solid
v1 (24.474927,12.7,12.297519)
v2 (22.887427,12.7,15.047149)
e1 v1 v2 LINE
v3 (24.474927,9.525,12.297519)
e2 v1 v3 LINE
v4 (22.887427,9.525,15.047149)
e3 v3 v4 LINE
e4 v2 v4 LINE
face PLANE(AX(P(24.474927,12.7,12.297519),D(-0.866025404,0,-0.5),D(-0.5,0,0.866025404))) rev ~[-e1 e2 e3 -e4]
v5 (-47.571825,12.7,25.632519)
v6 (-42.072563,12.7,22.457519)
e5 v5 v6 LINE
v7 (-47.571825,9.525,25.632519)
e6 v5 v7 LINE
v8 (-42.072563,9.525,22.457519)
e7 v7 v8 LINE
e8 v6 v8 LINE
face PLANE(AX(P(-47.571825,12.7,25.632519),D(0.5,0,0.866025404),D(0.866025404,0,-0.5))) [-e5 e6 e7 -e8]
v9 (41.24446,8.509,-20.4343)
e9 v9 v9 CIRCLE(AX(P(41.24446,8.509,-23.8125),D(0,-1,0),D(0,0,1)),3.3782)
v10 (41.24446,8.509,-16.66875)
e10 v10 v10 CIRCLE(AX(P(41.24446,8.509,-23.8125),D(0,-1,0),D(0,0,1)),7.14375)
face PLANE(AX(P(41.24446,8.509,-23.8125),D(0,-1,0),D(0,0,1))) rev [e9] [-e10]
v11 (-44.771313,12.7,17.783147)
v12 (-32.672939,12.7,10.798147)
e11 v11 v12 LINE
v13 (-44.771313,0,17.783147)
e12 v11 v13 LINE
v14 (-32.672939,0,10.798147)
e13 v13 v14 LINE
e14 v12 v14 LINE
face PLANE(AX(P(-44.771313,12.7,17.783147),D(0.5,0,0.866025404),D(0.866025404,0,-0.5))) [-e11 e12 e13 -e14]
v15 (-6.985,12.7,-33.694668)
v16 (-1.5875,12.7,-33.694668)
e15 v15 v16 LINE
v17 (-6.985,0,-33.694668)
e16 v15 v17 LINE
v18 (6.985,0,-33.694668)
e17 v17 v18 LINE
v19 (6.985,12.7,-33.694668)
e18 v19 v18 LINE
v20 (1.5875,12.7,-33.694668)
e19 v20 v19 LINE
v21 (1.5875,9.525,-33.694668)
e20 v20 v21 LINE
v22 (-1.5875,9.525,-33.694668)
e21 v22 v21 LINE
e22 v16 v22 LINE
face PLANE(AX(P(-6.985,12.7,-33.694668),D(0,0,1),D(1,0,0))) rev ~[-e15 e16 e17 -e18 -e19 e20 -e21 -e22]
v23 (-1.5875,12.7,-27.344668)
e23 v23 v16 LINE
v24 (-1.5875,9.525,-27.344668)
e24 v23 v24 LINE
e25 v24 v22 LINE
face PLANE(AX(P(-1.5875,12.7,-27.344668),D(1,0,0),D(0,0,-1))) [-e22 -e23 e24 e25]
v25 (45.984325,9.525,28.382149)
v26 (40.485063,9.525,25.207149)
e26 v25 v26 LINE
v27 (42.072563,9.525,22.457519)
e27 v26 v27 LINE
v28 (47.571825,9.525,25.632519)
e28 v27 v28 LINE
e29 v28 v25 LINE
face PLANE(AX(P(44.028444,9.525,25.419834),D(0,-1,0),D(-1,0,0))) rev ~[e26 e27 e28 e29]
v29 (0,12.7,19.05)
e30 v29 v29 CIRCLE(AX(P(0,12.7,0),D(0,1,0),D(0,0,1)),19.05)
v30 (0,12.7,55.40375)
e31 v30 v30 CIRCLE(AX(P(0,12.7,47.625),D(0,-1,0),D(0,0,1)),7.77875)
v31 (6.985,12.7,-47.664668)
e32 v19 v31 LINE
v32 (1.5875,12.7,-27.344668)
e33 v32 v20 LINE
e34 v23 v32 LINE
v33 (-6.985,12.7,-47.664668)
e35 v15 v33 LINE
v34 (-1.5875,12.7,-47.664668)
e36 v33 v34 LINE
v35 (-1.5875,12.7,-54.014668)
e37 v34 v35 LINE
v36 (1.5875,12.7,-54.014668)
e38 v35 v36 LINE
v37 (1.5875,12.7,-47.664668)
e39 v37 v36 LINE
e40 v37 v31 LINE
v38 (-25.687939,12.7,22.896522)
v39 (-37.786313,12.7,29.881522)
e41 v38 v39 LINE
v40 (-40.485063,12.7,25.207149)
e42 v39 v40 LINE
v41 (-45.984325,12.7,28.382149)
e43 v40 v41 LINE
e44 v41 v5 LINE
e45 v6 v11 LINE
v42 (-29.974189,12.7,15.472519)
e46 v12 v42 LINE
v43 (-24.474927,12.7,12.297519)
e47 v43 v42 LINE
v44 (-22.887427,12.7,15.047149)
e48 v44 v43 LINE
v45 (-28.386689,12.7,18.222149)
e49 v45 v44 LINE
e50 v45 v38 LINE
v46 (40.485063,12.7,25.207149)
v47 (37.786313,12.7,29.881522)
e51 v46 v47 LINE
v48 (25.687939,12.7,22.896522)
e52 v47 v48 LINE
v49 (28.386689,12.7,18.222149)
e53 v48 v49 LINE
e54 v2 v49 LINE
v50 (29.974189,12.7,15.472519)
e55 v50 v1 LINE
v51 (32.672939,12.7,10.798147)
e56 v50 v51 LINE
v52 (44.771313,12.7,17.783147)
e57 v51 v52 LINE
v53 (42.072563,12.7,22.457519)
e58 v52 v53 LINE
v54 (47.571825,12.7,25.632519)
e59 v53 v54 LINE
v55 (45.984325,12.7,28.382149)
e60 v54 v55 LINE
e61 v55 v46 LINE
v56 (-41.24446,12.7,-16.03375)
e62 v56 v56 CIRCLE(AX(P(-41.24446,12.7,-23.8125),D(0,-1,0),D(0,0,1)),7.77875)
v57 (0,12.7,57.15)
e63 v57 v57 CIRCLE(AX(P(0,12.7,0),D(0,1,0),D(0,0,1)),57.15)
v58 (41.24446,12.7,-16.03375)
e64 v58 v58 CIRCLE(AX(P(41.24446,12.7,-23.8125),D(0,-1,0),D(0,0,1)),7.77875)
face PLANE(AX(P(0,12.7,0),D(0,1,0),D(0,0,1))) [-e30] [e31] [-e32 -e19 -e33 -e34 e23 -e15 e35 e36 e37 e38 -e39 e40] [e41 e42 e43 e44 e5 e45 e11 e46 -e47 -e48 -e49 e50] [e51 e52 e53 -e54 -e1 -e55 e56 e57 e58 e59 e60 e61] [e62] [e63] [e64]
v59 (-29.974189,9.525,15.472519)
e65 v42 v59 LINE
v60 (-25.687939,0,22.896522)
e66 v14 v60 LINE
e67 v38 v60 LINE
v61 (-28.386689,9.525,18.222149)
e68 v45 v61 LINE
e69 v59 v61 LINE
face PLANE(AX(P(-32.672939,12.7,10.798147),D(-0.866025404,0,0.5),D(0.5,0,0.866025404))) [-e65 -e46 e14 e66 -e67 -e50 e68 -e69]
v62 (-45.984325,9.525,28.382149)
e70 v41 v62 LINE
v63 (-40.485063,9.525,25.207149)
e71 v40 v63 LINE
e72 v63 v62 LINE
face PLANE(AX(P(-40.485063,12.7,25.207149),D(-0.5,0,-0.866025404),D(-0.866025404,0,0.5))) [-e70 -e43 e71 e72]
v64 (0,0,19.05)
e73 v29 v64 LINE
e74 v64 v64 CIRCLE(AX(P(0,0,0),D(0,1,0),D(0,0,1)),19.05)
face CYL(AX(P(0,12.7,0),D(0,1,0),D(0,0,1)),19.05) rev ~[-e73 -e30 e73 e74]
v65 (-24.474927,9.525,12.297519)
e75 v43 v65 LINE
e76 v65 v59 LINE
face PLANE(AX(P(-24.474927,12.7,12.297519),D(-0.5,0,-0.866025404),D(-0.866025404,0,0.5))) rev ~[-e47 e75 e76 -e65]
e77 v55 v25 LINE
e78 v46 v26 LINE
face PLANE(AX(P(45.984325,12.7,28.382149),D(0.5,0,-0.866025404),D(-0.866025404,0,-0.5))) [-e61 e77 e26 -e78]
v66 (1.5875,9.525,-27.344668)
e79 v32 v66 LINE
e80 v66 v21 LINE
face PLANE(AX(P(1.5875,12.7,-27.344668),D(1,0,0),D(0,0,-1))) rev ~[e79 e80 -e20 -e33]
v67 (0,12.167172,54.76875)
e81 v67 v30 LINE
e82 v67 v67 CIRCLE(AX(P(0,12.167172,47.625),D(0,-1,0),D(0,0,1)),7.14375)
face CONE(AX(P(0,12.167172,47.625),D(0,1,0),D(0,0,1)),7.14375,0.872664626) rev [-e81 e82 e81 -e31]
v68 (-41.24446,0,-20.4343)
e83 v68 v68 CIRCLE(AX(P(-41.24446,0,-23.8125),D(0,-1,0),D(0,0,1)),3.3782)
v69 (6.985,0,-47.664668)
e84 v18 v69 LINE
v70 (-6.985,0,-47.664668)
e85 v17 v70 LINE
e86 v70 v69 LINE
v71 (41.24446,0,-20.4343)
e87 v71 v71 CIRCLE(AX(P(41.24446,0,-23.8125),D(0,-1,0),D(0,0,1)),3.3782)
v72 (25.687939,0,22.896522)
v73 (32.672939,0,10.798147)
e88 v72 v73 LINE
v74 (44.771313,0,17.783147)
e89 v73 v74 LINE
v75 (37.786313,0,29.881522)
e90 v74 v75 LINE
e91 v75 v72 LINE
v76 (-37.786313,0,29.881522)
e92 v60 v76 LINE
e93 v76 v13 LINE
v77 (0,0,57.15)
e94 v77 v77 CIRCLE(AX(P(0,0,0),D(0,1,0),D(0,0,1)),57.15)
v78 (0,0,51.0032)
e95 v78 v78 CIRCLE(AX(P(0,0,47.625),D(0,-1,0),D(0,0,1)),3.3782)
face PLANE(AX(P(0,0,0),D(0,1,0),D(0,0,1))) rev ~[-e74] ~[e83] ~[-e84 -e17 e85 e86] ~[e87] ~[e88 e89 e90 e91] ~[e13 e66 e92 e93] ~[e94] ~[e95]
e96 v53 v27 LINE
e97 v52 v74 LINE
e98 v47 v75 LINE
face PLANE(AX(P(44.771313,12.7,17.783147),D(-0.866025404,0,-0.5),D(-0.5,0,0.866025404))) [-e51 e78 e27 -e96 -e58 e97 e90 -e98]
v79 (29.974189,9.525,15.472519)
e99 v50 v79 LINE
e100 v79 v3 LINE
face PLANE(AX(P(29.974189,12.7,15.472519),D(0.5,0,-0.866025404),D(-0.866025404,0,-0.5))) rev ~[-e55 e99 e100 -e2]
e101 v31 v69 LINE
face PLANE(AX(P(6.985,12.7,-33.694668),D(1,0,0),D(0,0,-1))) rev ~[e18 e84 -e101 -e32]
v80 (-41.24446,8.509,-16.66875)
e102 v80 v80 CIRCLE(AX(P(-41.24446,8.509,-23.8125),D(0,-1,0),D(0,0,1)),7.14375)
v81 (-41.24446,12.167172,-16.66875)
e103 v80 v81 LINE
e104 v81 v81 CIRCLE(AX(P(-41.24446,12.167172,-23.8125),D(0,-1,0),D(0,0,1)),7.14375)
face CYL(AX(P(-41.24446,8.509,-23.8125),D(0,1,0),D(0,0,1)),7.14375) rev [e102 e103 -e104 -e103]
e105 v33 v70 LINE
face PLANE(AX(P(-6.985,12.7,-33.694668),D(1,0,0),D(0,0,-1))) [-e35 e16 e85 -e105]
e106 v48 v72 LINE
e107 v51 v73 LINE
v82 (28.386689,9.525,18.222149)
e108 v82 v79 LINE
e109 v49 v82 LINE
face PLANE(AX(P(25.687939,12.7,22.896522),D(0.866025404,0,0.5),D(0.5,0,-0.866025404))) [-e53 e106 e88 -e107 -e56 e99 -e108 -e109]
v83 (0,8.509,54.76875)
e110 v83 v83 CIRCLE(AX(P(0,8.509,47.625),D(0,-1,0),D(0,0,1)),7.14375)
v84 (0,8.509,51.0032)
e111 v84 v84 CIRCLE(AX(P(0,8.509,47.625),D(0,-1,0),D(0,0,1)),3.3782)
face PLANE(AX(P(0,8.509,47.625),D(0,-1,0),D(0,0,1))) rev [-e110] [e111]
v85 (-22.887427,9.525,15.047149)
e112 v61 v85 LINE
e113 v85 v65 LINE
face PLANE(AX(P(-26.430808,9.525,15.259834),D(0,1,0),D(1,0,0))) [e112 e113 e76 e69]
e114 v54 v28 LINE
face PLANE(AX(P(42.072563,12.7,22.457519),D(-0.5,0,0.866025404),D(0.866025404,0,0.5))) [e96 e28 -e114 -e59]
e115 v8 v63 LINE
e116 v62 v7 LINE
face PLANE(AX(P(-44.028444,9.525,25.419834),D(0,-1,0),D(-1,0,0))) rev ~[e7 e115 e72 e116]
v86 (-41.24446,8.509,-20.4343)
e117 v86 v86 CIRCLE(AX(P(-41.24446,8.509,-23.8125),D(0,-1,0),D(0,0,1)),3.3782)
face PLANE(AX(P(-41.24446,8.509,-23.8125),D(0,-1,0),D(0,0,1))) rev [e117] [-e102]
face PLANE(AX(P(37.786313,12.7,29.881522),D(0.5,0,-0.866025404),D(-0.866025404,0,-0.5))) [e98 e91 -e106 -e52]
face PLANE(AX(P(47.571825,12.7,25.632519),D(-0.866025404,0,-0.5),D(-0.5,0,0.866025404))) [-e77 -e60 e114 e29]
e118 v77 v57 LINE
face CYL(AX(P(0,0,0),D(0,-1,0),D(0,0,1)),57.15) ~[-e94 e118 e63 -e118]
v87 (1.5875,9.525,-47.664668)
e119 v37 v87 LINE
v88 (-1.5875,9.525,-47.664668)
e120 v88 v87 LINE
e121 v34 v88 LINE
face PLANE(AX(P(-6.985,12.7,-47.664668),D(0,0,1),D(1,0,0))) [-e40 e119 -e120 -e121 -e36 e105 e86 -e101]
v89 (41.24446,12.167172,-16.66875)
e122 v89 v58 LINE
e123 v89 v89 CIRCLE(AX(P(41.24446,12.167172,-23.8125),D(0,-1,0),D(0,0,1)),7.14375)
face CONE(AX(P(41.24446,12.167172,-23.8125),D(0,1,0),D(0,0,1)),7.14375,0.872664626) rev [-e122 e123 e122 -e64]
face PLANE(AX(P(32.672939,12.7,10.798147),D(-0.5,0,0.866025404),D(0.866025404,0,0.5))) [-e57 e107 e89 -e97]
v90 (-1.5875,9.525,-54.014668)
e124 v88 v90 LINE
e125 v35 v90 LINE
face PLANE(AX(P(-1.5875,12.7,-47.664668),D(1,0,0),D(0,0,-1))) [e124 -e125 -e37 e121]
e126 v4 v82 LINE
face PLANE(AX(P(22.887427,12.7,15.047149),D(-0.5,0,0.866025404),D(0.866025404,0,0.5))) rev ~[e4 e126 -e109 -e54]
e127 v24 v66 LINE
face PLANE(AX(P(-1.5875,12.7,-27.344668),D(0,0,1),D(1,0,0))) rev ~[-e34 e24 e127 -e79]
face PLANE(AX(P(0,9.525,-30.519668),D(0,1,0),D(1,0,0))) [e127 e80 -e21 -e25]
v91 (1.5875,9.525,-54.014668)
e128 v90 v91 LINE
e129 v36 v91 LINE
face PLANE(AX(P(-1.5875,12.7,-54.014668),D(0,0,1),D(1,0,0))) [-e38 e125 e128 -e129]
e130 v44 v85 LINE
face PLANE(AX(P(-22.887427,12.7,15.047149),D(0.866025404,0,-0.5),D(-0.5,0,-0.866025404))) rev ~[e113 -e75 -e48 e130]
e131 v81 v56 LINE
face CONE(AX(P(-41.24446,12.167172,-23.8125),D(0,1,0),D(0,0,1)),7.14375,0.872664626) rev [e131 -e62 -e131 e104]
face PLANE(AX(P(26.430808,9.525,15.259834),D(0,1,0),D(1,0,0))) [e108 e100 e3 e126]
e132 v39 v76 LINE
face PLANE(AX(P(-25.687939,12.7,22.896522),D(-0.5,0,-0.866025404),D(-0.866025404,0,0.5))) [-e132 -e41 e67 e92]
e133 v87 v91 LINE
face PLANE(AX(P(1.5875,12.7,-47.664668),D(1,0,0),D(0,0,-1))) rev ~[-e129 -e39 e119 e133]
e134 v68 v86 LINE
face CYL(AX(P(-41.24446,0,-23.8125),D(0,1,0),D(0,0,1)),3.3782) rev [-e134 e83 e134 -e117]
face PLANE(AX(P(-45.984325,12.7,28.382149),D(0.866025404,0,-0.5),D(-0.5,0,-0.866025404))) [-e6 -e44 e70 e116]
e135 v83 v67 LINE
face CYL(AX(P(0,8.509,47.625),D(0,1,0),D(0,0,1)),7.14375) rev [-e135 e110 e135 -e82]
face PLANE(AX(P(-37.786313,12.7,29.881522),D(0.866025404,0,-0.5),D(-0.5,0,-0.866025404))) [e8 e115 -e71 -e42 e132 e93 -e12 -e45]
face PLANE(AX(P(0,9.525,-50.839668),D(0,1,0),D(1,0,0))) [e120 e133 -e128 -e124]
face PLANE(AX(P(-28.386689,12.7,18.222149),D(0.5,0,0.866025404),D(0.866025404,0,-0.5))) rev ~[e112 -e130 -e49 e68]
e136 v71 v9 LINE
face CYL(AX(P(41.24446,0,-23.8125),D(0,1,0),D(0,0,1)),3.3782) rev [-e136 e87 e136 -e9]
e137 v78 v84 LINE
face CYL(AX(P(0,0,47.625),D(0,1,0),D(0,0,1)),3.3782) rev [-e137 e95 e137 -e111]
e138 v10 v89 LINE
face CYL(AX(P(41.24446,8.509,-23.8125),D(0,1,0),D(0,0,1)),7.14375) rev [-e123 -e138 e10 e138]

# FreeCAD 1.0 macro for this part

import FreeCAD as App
import Part
import Sketcher
from FreeCAD import Vector
Q = App.Units.Quantity


def add_polygon(sketch, points):
    """Adds a closed chain of lines whose ends are joined by coincident constraints."""
    first, n = sketch.GeometryCount, len(points)
    for a, b in zip(points, points[1:] + points[:1]):
        sketch.addGeometry(Part.LineSegment(App.Vector(*a, 0), App.Vector(*b, 0)), False)
    for i in range(n):
        sketch.addConstraint(Sketcher.Constraint("Coincident", first + i, 2, first + (i + 1) % n, 1))

doc = App.newDocument("Part")
body = doc.addObject("PartDesign::Body", "Body")

# Sketch on XZ plane
sketch1 = doc.addObject("Sketcher::SketchObject", "Sketch")
body.addObject(sketch1)
sketch1.AttachmentSupport = (doc.XZ_Plane, [""])
sketch1.MapMode = "FlatFace"
sketch1.addGeometry(Part.Circle(Vector(0, 0, 0), Vector(0, 0, 1), 57), False)
sketch1.addConstraint([
    Sketcher.Constraint("Coincident", 0, 3, -1, 1),
    Sketcher.Constraint("Diameter", 0, Q("4.5 in")),
])
pad1 = doc.addObject("PartDesign::Pad", "Pad")
body.addObject(pad1)
pad1.Profile = sketch1
pad1.Length = Q("0.5 in")
pad1.Reversed = True

# Sketch on XZ plane
sketch2 = doc.addObject("Sketcher::SketchObject", "Sketch001")
body.addObject(sketch2)
sketch2.AttachmentSupport = (doc.XZ_Plane, [""])
sketch2.MapMode = "FlatFace"
sketch2.AttachmentOffset = App.Placement(Vector(0, 0, -0.5 * 25.4), App.Rotation())
sketch2.addGeometry(Part.Circle(Vector(0, 0, 0), Vector(0, 0, 1), 19), False)
sketch2.addConstraint([
    Sketcher.Constraint("Coincident", 0, 3, -1, 1),
    Sketcher.Constraint("Diameter", 0, Q("1.5 in")),
])
pocket1 = doc.addObject("PartDesign::Pocket", "Pocket")
body.addObject(pocket1)
pocket1.Profile = sketch2
pocket1.Length = Q("3 in")
pocket1.Reversed = True

# Sketch on YZ plane
sketch3 = doc.addObject("Sketcher::SketchObject", "Sketch002")
body.addObject(sketch3)
sketch3.AttachmentSupport = (doc.YZ_Plane, [""])
sketch3.MapMode = "FlatFace"
sketch3.AttachmentOffset = App.Placement(Vector(0, 0, -41.24446), App.Rotation())
add_polygon(sketch3, [(0, -23.8), (12.7, -23.8), (12.7, -16), (12.2, -16.7), (8.5, -16.7), (8.5, -20.4), (0, -20.4)])  # lines 0-6
sketch3.addGeometry(Part.LineSegment(Vector(12.7, -23.8, 0), Vector(0, -23.8, 0)), True)  # axis
sketch3.addConstraint([
    Sketcher.Constraint("Horizontal", 0),
    Sketcher.Constraint("Vertical", 1),
    Sketcher.Constraint("Horizontal", 3),
    Sketcher.Constraint("Vertical", 4),
    Sketcher.Constraint("Horizontal", 5),
    Sketcher.Constraint("Vertical", 6),
    Sketcher.Constraint("Horizontal", 7),
    Sketcher.Constraint("Coincident", 7, 1, 0, 2),
    Sketcher.Constraint("PointOnObject", 5, 2, -2),
    Sketcher.Constraint("PointOnObject", 7, 2, -2),
    Sketcher.Constraint("DistanceX", 0, 1, 0, 2, Q("0.5 in")),
    Sketcher.Constraint("Angle", 2, Q("-130 deg")),
    Sketcher.Constraint("DistanceX", 5, 2, 5, 1, Q("0.335 in")),
    Sketcher.Constraint("DistanceY", 6, 2, 6, 1, Q("0.133 in")),
    Sketcher.Constraint("DistanceY", 0, 2, -1, 1, Q("0.9375 in")),
    Sketcher.Constraint("DistanceY", 2, 2, -1, 1, Q("0.65625 in")),
    Sketcher.Constraint("DistanceY", 2, 2, 1, 2, Q("0.025 in")),
])
groove = doc.addObject("PartDesign::Groove", "Groove")
body.addObject(groove)
groove.Profile = sketch3
groove.ReferenceAxis = (sketch3, ["Axis0"])
groove.Angle = 360
doc.recompute()

linearpattern = doc.addObject("PartDesign::LinearPattern", "LinearPattern")
body.addObject(linearpattern)
linearpattern.Originals = [groove]
linearpattern.Direction = (doc.X_Axis, [""])
linearpattern.Mode = "offset"
linearpattern.Offset = 82.48892
linearpattern.Occurrences = 2
body.Tip = linearpattern
doc.recompute()

datumline = doc.addObject("PartDesign::Line", "DatumLine")
body.addObject(datumline)
datumline.Placement = App.Placement(Vector(0, 0, 0), App.Rotation(Vector(0, 0, 1), Vector(0.5, 0, 0.866025404)))
linearpattern2 = doc.addObject("PartDesign::LinearPattern", "LinearPattern001")
body.addObject(linearpattern2)
linearpattern2.Originals = [groove]
linearpattern2.Direction = (datumline, [""])
linearpattern2.Mode = "offset"
linearpattern2.Offset = 82.48892
linearpattern2.Occurrences = 2
body.Tip = linearpattern2

# Sketch on XZ plane
sketch4 = doc.addObject("Sketcher::SketchObject", "Sketch003")
body.addObject(sketch4)
sketch4.AttachmentSupport = (doc.XZ_Plane, [""])
sketch4.MapMode = "FlatFace"
sketch4.AttachmentOffset = App.Placement(Vector(0, 0, -0.5 * 25.4), App.Rotation())
add_polygon(sketch4, [(-33, 11), (-45, 18), (-38, 30), (-26, 23)])  # lines 0-3
add_polygon(sketch4, [(45, 18), (33, 11), (26, 23), (38, 30)])  # lines 4-7
add_polygon(sketch4, [(-7, -48), (-7, -34), (7, -34), (7, -48)])  # lines 8-11
sketch4.addConstraint([
    Sketcher.Constraint("Vertical", 8),
    Sketcher.Constraint("Horizontal", 9),
    Sketcher.Constraint("Vertical", 10),
    Sketcher.Constraint("Horizontal", 11),
    Sketcher.Constraint("Symmetric", 3, 2, 4, 2, -2),
    Sketcher.Constraint("Symmetric", 2, 2, 5, 2, -2),
    Sketcher.Constraint("Symmetric", 1, 2, 6, 2, -2),
    Sketcher.Constraint("Symmetric", 0, 2, 7, 2, -2),
    Sketcher.Constraint("Perpendicular", 0, 1),
    Sketcher.Constraint("Perpendicular", 1, 2),
    Sketcher.Constraint("Perpendicular", 2, 3),
    Sketcher.Constraint("Equal", 11, 8),
    Sketcher.Constraint("Equal", 0, 1),
    Sketcher.Constraint("Angle", 0, Q("150 deg")),
    Sketcher.Constraint("DistanceX", 9, 1, 9, 2, Q("0.55 in")),
    Sketcher.Constraint("Distance", 0, Q("0.55 in")),
    Sketcher.Constraint("DistanceX", 8, 2, -1, 1, Q("0.275 in")),
    Sketcher.Constraint("DistanceY", -1, 1, 1, 2, Q("29.881522 mm")),
    Sketcher.Constraint("DistanceX", 2, 2, -1, 1, Q("25.687939 mm")),
    Sketcher.Constraint("DistanceY", 8, 2, -1, 1, Q("33.694668 mm")),
])
pocket2 = doc.addObject("PartDesign::Pocket", "Pocket001")
body.addObject(pocket2)
pocket2.Profile = sketch4
pocket2.Length = Q("0.5 in")
pocket2.Reversed = True

# Sketch on XZ plane
sketch5 = doc.addObject("Sketcher::SketchObject", "Sketch004")
body.addObject(sketch5)
sketch5.AttachmentSupport = (doc.XZ_Plane, [""])
sketch5.MapMode = "FlatFace"
sketch5.AttachmentOffset = App.Placement(Vector(0, 0, -0.5 * 25.4), App.Rotation())
add_polygon(sketch5, [(-1.6, -54), (-1.6, -47.7), (1.6, -47.7), (1.6, -54)])  # lines 0-3
add_polygon(sketch5, [(-1.6, -33.7), (-1.6, -27.3), (1.6, -27.3), (1.6, -33.7)])  # lines 4-7
add_polygon(sketch5, [(47.6, 25.6), (42.1, 22.5), (40.5, 25.2), (46, 28.4)])  # lines 8-11
add_polygon(sketch5, [(30, 15.5), (24.5, 12.3), (22.9, 15), (28.4, 18.2)])  # lines 12-15
add_polygon(sketch5, [(-46, 28.4), (-40.5, 25.2), (-42.1, 22.5), (-47.6, 25.6)])  # lines 16-19
add_polygon(sketch5, [(-28.4, 18.2), (-22.9, 15), (-24.5, 12.3), (-30, 15.5)])  # lines 20-23
sketch5.addConstraint([
    Sketcher.Constraint("Vertical", 0),
    Sketcher.Constraint("Horizontal", 1),
    Sketcher.Constraint("Vertical", 2),
    Sketcher.Constraint("Horizontal", 3),
    Sketcher.Constraint("Vertical", 4),
    Sketcher.Constraint("Horizontal", 5),
    Sketcher.Constraint("Vertical", 6),
    Sketcher.Constraint("Horizontal", 7),
    Sketcher.Constraint("Symmetric", 9, 2, 16, 2, -2),
    Sketcher.Constraint("Symmetric", 8, 2, 17, 2, -2),
    Sketcher.Constraint("Symmetric", 11, 2, 18, 2, -2),
    Sketcher.Constraint("Symmetric", 10, 2, 19, 2, -2),
    Sketcher.Constraint("Symmetric", 13, 2, 20, 2, -2),
    Sketcher.Constraint("Symmetric", 12, 2, 21, 2, -2),
    Sketcher.Constraint("Symmetric", 15, 2, 22, 2, -2),
    Sketcher.Constraint("Symmetric", 14, 2, 23, 2, -2),
    Sketcher.Constraint("Perpendicular", 8, 9),
    Sketcher.Constraint("Perpendicular", 9, 10),
    Sketcher.Constraint("Perpendicular", 10, 11),
    Sketcher.Constraint("Perpendicular", 11, 12),
    Sketcher.Constraint("Perpendicular", 12, 13),
    Sketcher.Constraint("Perpendicular", 13, 14),
    Sketcher.Constraint("Perpendicular", 14, 15),
    Sketcher.Constraint("Vertical", 3, 2, 4, 2),
    Sketcher.Constraint("Vertical", 2, 2, 5, 2),
    Sketcher.Constraint("Equal", 2, 4),
    Sketcher.Constraint("Equal", 10, 12),
    Sketcher.Constraint("Equal", 11, 13),
    Sketcher.Constraint("Angle", 8, Q("-150 deg")),
    Sketcher.Constraint("DistanceY", 0, 1, 0, 2, Q("0.25 in")),
    Sketcher.Constraint("DistanceY", 0, 2, 4, 2, Q("0.8 in")),
    Sketcher.Constraint("DistanceY", 12, 2, 8, 2, Q("0.4 in")),
    Sketcher.Constraint("Distance", 8, Q("0.25 in")),
    Sketcher.Constraint("DistanceX", 1, 1, 1, 2, Q("0.125 in")),
    Sketcher.Constraint("Distance", 9, Q("0.125 in")),
    Sketcher.Constraint("DistanceX", 0, 2, -1, 1, Q("0.0625 in")),
    Sketcher.Constraint("DistanceX", -1, 1, 8, 2, Q("1.6564001 in")),
    Sketcher.Constraint("DistanceY", 0, 2, -1, 1, Q("47.664668 mm")),
    Sketcher.Constraint("DistanceY", -1, 1, 8, 2, Q("22.457519 mm")),
    Sketcher.Constraint("DistanceX", -1, 1, 14, 2, Q("28.386689 mm")),
])
pocket3 = doc.addObject("PartDesign::Pocket", "Pocket002")
body.addObject(pocket3)
pocket3.Profile = sketch5
pocket3.Length = Q("0.125 in")
pocket3.Reversed = True

doc.recompute()
